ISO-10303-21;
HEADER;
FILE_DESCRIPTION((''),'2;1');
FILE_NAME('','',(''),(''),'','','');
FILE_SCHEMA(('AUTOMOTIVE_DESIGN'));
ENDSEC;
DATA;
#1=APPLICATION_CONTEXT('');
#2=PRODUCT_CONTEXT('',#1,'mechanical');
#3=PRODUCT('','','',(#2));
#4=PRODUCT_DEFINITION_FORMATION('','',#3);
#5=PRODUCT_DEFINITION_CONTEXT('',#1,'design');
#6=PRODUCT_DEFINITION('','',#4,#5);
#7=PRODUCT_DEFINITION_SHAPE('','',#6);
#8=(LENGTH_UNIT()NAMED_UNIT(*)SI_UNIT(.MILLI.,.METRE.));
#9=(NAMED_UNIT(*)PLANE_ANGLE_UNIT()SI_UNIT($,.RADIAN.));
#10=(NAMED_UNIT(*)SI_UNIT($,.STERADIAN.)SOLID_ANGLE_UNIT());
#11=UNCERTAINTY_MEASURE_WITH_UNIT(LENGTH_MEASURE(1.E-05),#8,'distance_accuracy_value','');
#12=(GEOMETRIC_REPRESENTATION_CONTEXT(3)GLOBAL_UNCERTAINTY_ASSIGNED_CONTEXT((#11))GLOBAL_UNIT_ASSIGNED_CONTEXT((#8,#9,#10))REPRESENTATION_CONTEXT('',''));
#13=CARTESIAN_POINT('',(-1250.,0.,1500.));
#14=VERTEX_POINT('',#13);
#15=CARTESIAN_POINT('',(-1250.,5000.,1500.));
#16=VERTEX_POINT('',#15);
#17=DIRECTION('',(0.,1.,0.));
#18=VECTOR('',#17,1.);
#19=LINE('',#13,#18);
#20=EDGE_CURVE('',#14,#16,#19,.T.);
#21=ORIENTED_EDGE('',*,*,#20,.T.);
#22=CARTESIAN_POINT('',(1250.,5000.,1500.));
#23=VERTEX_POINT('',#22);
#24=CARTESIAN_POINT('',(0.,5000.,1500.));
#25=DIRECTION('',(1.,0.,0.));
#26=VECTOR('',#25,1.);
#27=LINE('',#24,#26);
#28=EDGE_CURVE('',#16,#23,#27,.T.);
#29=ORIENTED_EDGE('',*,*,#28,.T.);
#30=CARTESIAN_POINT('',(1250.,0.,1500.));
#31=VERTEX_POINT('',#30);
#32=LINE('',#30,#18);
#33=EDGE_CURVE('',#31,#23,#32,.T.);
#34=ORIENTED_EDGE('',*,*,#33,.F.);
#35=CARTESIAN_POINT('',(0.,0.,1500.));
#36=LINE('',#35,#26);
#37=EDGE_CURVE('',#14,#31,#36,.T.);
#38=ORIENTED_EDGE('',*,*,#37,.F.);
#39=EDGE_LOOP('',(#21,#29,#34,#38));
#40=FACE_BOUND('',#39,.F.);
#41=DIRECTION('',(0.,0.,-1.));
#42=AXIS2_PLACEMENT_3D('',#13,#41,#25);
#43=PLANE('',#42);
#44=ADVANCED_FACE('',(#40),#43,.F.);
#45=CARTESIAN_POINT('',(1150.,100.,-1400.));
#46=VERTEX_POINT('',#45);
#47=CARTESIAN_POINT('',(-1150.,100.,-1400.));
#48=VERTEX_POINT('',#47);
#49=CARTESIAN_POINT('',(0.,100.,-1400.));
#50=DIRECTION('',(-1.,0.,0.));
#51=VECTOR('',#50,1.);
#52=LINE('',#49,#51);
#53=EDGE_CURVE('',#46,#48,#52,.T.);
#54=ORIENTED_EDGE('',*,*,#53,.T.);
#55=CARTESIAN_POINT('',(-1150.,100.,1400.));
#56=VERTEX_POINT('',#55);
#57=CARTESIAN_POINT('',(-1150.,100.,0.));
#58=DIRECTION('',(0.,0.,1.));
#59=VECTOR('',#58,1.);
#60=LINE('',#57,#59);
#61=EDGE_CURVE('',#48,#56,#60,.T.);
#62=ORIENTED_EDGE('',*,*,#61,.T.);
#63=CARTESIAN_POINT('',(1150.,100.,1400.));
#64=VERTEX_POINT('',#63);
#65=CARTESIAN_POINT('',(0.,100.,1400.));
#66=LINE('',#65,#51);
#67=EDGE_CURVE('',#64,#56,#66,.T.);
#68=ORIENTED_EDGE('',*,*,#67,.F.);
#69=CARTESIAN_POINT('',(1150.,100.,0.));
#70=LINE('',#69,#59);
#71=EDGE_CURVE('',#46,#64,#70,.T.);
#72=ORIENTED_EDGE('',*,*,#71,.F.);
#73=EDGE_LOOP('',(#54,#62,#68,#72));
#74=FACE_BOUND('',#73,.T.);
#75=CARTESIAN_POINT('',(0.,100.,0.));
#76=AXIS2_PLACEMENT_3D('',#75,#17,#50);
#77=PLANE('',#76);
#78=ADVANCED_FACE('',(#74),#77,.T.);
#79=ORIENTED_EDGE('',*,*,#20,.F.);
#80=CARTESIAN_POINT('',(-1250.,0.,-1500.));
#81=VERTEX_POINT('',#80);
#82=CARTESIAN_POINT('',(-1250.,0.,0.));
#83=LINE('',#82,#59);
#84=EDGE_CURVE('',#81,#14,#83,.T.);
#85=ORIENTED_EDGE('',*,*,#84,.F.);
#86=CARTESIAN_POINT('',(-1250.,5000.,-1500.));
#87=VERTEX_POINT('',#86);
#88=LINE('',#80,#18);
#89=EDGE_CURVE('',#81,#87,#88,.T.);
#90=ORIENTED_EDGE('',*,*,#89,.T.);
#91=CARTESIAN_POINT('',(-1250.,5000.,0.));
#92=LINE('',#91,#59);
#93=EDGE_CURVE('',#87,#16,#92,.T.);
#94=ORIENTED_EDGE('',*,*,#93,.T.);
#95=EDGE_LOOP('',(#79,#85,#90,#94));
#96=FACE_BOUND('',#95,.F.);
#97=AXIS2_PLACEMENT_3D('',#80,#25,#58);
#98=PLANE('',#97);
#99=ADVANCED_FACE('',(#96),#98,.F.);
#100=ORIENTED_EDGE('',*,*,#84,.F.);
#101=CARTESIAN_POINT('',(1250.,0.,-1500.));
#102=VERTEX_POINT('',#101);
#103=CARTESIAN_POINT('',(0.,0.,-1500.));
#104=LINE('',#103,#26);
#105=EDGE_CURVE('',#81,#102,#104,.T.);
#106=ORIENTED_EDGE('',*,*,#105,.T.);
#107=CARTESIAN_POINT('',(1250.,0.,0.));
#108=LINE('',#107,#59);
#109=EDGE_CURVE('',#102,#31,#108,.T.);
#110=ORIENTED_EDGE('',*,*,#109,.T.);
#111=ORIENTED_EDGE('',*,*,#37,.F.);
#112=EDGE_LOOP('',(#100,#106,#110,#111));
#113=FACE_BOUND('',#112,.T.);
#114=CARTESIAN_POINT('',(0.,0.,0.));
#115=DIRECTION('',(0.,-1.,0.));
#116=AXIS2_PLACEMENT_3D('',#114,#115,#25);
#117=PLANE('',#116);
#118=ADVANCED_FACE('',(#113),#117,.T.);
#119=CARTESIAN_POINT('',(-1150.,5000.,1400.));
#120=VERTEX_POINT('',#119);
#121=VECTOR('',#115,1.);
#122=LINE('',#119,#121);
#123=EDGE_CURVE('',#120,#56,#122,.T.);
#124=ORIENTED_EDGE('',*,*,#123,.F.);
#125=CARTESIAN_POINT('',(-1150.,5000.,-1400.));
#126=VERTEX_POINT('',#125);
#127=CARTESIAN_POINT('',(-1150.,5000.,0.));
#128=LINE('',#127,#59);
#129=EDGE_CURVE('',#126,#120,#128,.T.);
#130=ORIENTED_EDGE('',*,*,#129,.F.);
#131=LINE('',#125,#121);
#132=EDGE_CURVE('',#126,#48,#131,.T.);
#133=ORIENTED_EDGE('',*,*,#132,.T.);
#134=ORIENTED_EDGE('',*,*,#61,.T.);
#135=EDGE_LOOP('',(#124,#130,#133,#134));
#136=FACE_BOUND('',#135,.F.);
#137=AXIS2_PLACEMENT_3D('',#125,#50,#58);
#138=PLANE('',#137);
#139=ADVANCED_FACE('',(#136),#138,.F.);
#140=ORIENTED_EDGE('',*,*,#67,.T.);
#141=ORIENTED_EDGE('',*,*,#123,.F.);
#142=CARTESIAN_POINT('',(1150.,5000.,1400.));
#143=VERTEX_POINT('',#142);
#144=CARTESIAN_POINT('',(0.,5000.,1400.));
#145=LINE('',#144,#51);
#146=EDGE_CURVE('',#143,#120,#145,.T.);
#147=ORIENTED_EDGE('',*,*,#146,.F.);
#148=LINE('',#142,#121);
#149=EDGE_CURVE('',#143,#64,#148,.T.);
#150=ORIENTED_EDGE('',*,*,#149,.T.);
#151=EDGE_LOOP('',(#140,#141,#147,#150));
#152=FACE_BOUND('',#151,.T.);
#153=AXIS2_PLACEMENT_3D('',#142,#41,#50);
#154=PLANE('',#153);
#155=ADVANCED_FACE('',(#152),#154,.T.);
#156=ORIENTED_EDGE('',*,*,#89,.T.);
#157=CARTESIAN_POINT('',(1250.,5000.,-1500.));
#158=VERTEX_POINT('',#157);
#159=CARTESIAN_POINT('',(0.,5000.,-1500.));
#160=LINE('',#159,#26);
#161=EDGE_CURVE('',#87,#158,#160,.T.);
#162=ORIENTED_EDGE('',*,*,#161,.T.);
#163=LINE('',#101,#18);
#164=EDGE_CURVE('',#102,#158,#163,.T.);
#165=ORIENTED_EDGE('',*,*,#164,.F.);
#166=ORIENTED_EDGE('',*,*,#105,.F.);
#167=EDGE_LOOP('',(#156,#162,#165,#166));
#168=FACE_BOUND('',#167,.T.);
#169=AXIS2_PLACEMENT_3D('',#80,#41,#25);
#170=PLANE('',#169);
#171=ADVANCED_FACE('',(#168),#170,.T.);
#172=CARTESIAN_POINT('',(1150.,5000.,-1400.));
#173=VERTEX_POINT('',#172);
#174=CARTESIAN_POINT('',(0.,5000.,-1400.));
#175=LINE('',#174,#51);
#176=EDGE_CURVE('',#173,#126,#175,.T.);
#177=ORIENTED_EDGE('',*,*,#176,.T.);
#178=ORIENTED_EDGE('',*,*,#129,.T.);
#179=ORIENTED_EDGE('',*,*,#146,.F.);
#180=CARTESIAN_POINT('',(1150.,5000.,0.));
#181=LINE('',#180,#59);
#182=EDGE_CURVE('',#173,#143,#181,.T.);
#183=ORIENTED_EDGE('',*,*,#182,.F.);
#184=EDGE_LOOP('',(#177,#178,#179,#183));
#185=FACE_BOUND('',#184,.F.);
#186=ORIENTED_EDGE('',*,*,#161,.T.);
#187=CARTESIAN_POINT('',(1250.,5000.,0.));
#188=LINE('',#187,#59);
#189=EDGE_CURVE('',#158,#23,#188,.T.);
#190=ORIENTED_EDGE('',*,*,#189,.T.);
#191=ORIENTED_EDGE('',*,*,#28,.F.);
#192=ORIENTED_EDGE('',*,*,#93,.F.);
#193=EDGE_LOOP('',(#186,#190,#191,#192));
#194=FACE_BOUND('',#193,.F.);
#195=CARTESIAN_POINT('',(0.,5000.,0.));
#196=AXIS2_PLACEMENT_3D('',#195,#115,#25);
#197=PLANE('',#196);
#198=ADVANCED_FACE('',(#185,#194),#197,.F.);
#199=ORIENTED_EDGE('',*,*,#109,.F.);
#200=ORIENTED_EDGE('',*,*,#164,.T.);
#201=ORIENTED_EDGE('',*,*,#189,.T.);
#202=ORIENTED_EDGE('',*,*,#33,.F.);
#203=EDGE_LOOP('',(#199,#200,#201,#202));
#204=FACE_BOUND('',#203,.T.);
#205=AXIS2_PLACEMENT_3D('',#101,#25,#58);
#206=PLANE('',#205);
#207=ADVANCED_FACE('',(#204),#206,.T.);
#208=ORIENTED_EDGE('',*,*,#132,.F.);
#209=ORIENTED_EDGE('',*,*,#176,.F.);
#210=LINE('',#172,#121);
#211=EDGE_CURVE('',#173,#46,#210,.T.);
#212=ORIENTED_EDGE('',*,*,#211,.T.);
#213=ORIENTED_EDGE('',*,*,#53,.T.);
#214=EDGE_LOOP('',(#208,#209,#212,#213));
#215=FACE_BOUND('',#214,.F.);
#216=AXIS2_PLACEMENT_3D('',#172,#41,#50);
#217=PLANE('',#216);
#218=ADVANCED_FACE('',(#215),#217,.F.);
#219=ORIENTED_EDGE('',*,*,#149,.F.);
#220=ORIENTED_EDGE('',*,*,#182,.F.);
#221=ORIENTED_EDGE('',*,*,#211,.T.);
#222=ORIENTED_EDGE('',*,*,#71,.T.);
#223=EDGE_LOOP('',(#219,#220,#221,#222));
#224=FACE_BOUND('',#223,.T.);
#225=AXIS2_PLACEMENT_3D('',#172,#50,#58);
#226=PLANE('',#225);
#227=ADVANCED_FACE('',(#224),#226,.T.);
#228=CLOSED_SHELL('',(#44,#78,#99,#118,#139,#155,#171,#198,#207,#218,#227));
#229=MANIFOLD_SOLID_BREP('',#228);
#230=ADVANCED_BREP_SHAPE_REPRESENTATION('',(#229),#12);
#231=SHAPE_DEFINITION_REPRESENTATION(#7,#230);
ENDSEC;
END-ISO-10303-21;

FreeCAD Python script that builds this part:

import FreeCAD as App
import Part
import Sketcher


def add_polygon(sketch, points):
    """Adds a closed chain of lines whose ends are joined by coincident constraints."""
    first, n = sketch.GeometryCount, len(points)
    for a, b in zip(points, points[1:] + points[:1]):
        sketch.addGeometry(Part.LineSegment(App.Vector(*a, 0), App.Vector(*b, 0)), False)
    for i in range(n):
        sketch.addConstraint(Sketcher.Constraint("Coincident", first + i, 2, first + (i + 1) % n, 1))

doc = App.newDocument("Part")
params = doc.addObject("Spreadsheet::Sheet", "Params")
for row, (alias, value) in enumerate([
    ("sketch1_width", "2500 mm"),
    ("sketch1_height", "3000 mm"),
    ("pad1_length", "5000 mm"),
    ("sketch2_width", "2300 mm"),
    ("sketch2_height", "2800 mm"),
    ("pocket1_length", "4900 mm"),
], start=1):
    params.set(f"A{row}", alias)
    params.set(f"B{row}", "=" + value)
    params.setAlias(f"B{row}", alias)

body = doc.addObject("PartDesign::Body", "Body")

sketch1 = doc.addObject("Sketcher::SketchObject", "Sketch")
body.addObject(sketch1)
sketch1.AttachmentSupport = (doc.XZ_Plane, [""])
sketch1.MapMode = "FlatFace"
add_polygon(sketch1, [(-1250, 1500), (-1250, -1500), (1250, -1500), (1250, 1500)])
sketch1.addConstraint([
    Sketcher.Constraint("Vertical", 0),
    Sketcher.Constraint("Horizontal", 1),
    Sketcher.Constraint("Vertical", 2),
    Sketcher.Constraint("Horizontal", 3),
    Sketcher.Constraint("Symmetric", 0, 2, 2, 2, -1, 1),
    Sketcher.Constraint("DistanceX", 1, 1, 1, 2, 2500.0),
    Sketcher.Constraint("DistanceY", 0, 2, 0, 1, 3000.0),
])
sketch1.setExpression("Constraints[9]", "Params.sketch1_width")
sketch1.setExpression("Constraints[10]", "Params.sketch1_height")
pad1 = doc.addObject("PartDesign::Pad", "Pad")
body.addObject(pad1)
pad1.Profile = sketch1
pad1.setExpression("Length", "Params.pad1_length")
pad1.Reversed = True

sketch2 = doc.addObject("Sketcher::SketchObject", "Sketch001")
body.addObject(sketch2)
sketch2.AttachmentSupport = (doc.XZ_Plane, [""])
sketch2.MapMode = "FlatFace"
sketch2.AttachmentOffset = App.Placement(App.Vector(0, 0, -5000), App.Rotation())
add_polygon(sketch2, [(1150, 1400), (1150, -1400), (-1150, -1400), (-1150, 1400)])
sketch2.addConstraint([
    Sketcher.Constraint("Vertical", 0),
    Sketcher.Constraint("Horizontal", 1),
    Sketcher.Constraint("Vertical", 2),
    Sketcher.Constraint("Horizontal", 3),
    Sketcher.Constraint("Symmetric", 0, 2, 2, 2, -1, 1),
    Sketcher.Constraint("DistanceX", 1, 2, 1, 1, 2300.0),
    Sketcher.Constraint("DistanceY", 0, 2, 0, 1, 2800.0),
])
sketch2.setExpression("Constraints[9]", "Params.sketch2_width")
sketch2.setExpression("Constraints[10]", "Params.sketch2_height")
pocket1 = doc.addObject("PartDesign::Pocket", "Pocket")
body.addObject(pocket1)
pocket1.Profile = sketch2
pocket1.setExpression("Length", "Params.pocket1_length")
pocket1.Reversed = True

doc.recompute()
